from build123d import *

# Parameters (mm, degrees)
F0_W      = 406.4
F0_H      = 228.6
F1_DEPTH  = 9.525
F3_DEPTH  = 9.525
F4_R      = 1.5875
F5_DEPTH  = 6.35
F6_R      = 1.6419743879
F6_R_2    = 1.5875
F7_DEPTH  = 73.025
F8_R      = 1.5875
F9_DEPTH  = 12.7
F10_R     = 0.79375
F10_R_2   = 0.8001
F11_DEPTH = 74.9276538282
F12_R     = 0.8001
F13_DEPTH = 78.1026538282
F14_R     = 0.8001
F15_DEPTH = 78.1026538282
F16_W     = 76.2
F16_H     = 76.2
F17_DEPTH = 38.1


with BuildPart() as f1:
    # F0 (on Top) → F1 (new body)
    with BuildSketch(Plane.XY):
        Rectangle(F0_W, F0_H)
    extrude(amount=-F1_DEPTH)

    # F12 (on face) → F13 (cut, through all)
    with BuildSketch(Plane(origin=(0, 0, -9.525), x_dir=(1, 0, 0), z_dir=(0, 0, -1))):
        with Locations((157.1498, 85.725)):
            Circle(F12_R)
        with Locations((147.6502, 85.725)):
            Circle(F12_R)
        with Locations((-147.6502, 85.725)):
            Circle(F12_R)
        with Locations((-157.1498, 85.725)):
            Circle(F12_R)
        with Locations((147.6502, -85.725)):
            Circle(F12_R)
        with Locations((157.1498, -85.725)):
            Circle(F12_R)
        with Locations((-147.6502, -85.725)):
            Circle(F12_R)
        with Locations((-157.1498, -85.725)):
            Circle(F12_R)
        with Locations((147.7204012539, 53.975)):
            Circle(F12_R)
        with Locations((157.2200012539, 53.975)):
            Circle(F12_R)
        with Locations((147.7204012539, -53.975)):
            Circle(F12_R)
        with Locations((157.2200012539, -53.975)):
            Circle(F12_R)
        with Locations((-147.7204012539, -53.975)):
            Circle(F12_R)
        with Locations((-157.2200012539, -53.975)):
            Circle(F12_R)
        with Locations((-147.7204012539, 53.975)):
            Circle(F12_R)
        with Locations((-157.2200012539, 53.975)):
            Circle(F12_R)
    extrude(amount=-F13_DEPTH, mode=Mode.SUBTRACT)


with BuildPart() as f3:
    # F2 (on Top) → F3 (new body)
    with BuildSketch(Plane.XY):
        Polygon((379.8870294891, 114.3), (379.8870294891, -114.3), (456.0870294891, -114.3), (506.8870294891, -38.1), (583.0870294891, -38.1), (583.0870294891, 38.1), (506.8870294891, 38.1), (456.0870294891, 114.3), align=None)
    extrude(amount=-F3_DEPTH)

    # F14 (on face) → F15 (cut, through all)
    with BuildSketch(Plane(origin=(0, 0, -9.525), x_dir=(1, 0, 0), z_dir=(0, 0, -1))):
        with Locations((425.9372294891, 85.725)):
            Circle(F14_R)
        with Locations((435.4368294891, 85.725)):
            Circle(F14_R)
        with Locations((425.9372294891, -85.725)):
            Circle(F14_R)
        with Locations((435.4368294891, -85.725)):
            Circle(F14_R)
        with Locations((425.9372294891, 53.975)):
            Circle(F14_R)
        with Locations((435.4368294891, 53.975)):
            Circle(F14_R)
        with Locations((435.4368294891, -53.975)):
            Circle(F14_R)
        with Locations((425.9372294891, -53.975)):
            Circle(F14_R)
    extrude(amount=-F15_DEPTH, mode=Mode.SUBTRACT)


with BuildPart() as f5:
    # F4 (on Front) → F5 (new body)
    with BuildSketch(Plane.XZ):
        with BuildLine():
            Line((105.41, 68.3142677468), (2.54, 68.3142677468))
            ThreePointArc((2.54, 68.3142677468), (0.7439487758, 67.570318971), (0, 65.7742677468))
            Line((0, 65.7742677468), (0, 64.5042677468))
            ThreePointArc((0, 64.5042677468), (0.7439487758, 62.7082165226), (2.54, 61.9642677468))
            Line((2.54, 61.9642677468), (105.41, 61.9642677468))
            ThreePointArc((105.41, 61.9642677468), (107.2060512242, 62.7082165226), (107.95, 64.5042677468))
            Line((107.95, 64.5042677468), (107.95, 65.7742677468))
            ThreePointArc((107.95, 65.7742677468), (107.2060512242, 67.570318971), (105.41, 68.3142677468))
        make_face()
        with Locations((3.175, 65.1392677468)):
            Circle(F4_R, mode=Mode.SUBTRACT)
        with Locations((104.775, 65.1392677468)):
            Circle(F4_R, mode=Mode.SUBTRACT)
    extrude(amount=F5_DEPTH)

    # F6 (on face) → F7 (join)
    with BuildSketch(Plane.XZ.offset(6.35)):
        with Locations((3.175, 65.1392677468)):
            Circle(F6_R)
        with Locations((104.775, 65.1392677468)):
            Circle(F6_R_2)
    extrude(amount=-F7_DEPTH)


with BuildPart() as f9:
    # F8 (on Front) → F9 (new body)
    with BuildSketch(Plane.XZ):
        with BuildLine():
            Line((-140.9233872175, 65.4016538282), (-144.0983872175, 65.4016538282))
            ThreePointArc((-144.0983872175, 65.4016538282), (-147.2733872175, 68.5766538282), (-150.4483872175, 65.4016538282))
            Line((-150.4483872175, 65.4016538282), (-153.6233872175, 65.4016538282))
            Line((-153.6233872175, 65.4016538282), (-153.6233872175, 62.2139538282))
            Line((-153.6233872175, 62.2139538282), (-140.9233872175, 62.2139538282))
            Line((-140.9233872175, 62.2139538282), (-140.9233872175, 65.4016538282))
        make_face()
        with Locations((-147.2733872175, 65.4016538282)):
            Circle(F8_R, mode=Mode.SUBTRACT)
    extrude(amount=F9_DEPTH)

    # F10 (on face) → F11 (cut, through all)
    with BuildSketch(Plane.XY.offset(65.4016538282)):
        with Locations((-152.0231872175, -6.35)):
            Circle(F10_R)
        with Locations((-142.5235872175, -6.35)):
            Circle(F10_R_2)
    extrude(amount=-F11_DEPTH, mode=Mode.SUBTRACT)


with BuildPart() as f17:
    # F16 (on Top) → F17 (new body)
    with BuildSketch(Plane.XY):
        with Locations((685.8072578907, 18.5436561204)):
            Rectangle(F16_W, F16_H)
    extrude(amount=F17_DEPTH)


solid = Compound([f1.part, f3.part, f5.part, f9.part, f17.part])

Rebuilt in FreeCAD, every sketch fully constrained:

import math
import FreeCAD as App
import Part
import Sketcher
from FreeCAD import Vector
Q = App.Units.Quantity

doc = App.newDocument("Part")
body = doc.addObject("PartDesign::Body", "Body")

sketch1 = doc.addObject("Sketcher::SketchObject", "Sketch")
body.addObject(sketch1)
sketch1.AttachmentSupport = (doc.XY_Plane, [""])
sketch1.MapMode = "FlatFace"
sketch1.addGeometry([
    Part.LineSegment(Vector(-203, 114, 0), Vector(-203, -114, 0)),
    Part.LineSegment(Vector(-203, -114, 0), Vector(203, -114, 0)),
    Part.LineSegment(Vector(203, -114, 0), Vector(203, 114, 0)),
    Part.LineSegment(Vector(203, 114, 0), Vector(-203, 114, 0)),
], False)
sketch1.addConstraint([
    Sketcher.Constraint("Coincident", 0, 2, 1, 1),
    Sketcher.Constraint("Coincident", 1, 2, 2, 1),
    Sketcher.Constraint("Coincident", 2, 2, 3, 1),
    Sketcher.Constraint("Coincident", 3, 2, 0, 1),
    Sketcher.Constraint("Vertical", 0),
    Sketcher.Constraint("Horizontal", 1),
    Sketcher.Constraint("Vertical", 2),
    Sketcher.Constraint("Horizontal", 3),
    Sketcher.Constraint("Symmetric", 0, 2, 2, 2, -1, 1),
    Sketcher.Constraint("DistanceX", 1, 1, 1, 2, Q("16 in")),
    Sketcher.Constraint("DistanceY", 0, 2, 0, 1, Q("9 in")),
])
pad1 = doc.addObject("PartDesign::Pad", "Pad")
body.addObject(pad1)
pad1.Profile = sketch1
pad1.Length = Q("0.375 in")
pad1.Reversed = True

sketch2 = doc.addObject("Sketcher::SketchObject", "Sketch001")
body.addObject(sketch2)
sketch2.AttachmentSupport = (doc.XY_Plane, [""])
sketch2.MapMode = "FlatFace"
sketch2.AttachmentOffset = App.Placement(Vector(0, 0, -0.375 * 25.4), App.Rotation())
sketch2.addGeometry([
    Part.Circle(Vector(157.1, -85.7, 0), Vector(0, 0, 1), 0.8),
    Part.Circle(Vector(147.7, -85.7, 0), Vector(0, 0, 1), 0.8),
    Part.Circle(Vector(-147.7, -85.7, 0), Vector(0, 0, 1), 0.8),
    Part.Circle(Vector(-157.1, -85.7, 0), Vector(0, 0, 1), 0.8),
    Part.Circle(Vector(147.7, 85.7, 0), Vector(0, 0, 1), 0.8),
    Part.Circle(Vector(157.1, 85.7, 0), Vector(0, 0, 1), 0.8),
    Part.Circle(Vector(-147.7, 85.7, 0), Vector(0, 0, 1), 0.8),
    Part.Circle(Vector(-157.1, 85.7, 0), Vector(0, 0, 1), 0.8),
    Part.Circle(Vector(147.7, -54, 0), Vector(0, 0, 1), 0.8),
    Part.Circle(Vector(157.2, -54, 0), Vector(0, 0, 1), 0.8),
    Part.Circle(Vector(147.7, 54, 0), Vector(0, 0, 1), 0.8),
    Part.Circle(Vector(157.2, 54, 0), Vector(0, 0, 1), 0.8),
    Part.Circle(Vector(-147.7, 54, 0), Vector(0, 0, 1), 0.8),
    Part.Circle(Vector(-157.2, 54, 0), Vector(0, 0, 1), 0.8),
    Part.Circle(Vector(-147.7, -54, 0), Vector(0, 0, 1), 0.8),
    Part.Circle(Vector(-157.2, -54, 0), Vector(0, 0, 1), 0.8),
], False)
sketch2.addConstraint([
    Sketcher.Constraint("Equal", 0, 1),
    Sketcher.Constraint("Equal", 1, 2),
    Sketcher.Constraint("Equal", 2, 3),
    Sketcher.Constraint("Equal", 3, 4),
    Sketcher.Constraint("Equal", 4, 5),
    Sketcher.Constraint("Equal", 5, 6),
    Sketcher.Constraint("Equal", 6, 7),
    Sketcher.Constraint("Equal", 7, 8),
    Sketcher.Constraint("Equal", 8, 9),
    Sketcher.Constraint("Equal", 9, 10),
    Sketcher.Constraint("Equal", 10, 11),
    Sketcher.Constraint("Equal", 11, 12),
    Sketcher.Constraint("Equal", 12, 13),
    Sketcher.Constraint("Equal", 13, 14),
    Sketcher.Constraint("Equal", 14, 15),
    Sketcher.Constraint("Symmetric", 2, 3, 4, 3, -1, 1),
    Sketcher.Constraint("Symmetric", 3, 3, 5, 3, -1, 1),
    Sketcher.Constraint("Symmetric", 1, 3, 6, 3, -1, 1),
    Sketcher.Constraint("Symmetric", 0, 3, 7, 3, -1, 1),
    Sketcher.Constraint("Symmetric", 8, 3, 12, 3, -1, 1),
    Sketcher.Constraint("Symmetric", 9, 3, 13, 3, -1, 1),
    Sketcher.Constraint("Symmetric", 10, 3, 14, 3, -1, 1),
    Sketcher.Constraint("Symmetric", 11, 3, 15, 3, -1, 1),
    Sketcher.Constraint("Symmetric", 1, 3, 2, 3, -2),
    Sketcher.Constraint("Symmetric", 0, 3, 3, 3, -2),
    Sketcher.Constraint("Symmetric", 10, 3, 12, 3, -2),
    Sketcher.Constraint("Symmetric", 11, 3, 13, 3, -2),
    Sketcher.Constraint("Horizontal", 0, 3, 1, 3),
    Sketcher.Constraint("Horizontal", 8, 3, 9, 3),
    Sketcher.Constraint("Diameter", 0, Q("0.063 in")),
    Sketcher.Constraint("DistanceX", 2, 3, 0, 3, Q("12 in")),
    Sketcher.Constraint("DistanceY", 8, 3, 4, 3, Q("5.5 in")),
    Sketcher.Constraint("DistanceY", 1, 3, 4, 3, Q("6.75 in")),
    Sketcher.Constraint("DistanceX", -1, 1, 0, 3, Q("6.187 in")),
    Sketcher.Constraint("DistanceX", 8, 3, 9, 3, Q("0.374 in")),
    Sketcher.Constraint("DistanceX", -1, 1, 8, 3, Q("147.720401 mm")),
])
pocket1 = doc.addObject("PartDesign::Pocket", "Pocket")
body.addObject(pocket1)
pocket1.Profile = sketch2
pocket1.Type = "ThroughAll"
pocket1.Reversed = True
body2 = doc.addObject("PartDesign::Body", "Body001")

sketch3 = doc.addObject("Sketcher::SketchObject", "Sketch002")
body2.addObject(sketch3)
sketch3.AttachmentSupport = (doc.getObject("XY_Plane001"), [""])
sketch3.MapMode = "FlatFace"
sketch3.addGeometry([
    Part.LineSegment(Vector(380, 114, 0), Vector(380, -114, 0)),
    Part.LineSegment(Vector(380, -114, 0), Vector(456, -114, 0)),
    Part.LineSegment(Vector(456, -114, 0), Vector(507, -38, 0)),
    Part.LineSegment(Vector(507, -38, 0), Vector(583, -38, 0)),
    Part.LineSegment(Vector(583, -38, 0), Vector(583, 38, 0)),
    Part.LineSegment(Vector(583, 38, 0), Vector(507, 38, 0)),
    Part.LineSegment(Vector(507, 38, 0), Vector(456, 114, 0)),
    Part.LineSegment(Vector(456, 114, 0), Vector(380, 114, 0)),
], False)
sketch3.addConstraint([
    Sketcher.Constraint("Coincident", 0, 2, 1, 1),
    Sketcher.Constraint("Coincident", 1, 2, 2, 1),
    Sketcher.Constraint("Coincident", 2, 2, 3, 1),
    Sketcher.Constraint("Coincident", 3, 2, 4, 1),
    Sketcher.Constraint("Coincident", 4, 2, 5, 1),
    Sketcher.Constraint("Coincident", 5, 2, 6, 1),
    Sketcher.Constraint("Coincident", 6, 2, 7, 1),
    Sketcher.Constraint("Coincident", 7, 2, 0, 1),
    Sketcher.Constraint("Vertical", 0),
    Sketcher.Constraint("Horizontal", 1),
    Sketcher.Constraint("Horizontal", 3),
    Sketcher.Constraint("Vertical", 4),
    Sketcher.Constraint("Horizontal", 5),
    Sketcher.Constraint("Horizontal", 7),
    Sketcher.Constraint("Symmetric", 2, 2, 5, 2, -1),
    Sketcher.Constraint("Symmetric", 1, 2, 6, 2, -1),
    Sketcher.Constraint("Equal", 1, 3),
    Sketcher.Constraint("Equal", 7, 4),
    Sketcher.Constraint("DistanceX", 1, 1, 1, 2, Q("3 in")),
    Sketcher.Constraint("DistanceY", 0, 2, 0, 1, Q("9 in")),
    Sketcher.Constraint("DistanceX", 1, 2, 2, 2, Q("2 in")),
    Sketcher.Constraint("DistanceX", -1, 1, 0, 2, Q("379.887029 mm")),
])
pad2 = doc.addObject("PartDesign::Pad", "Pad001")
body2.addObject(pad2)
pad2.Profile = sketch3
pad2.Length = Q("0.375 in")
pad2.Reversed = True

sketch4 = doc.addObject("Sketcher::SketchObject", "Sketch003")
body2.addObject(sketch4)
sketch4.AttachmentSupport = (doc.getObject("XY_Plane001"), [""])
sketch4.MapMode = "FlatFace"
sketch4.AttachmentOffset = App.Placement(Vector(0, 0, -0.375 * 25.4), App.Rotation())
sketch4.addGeometry([
    Part.Circle(Vector(425.9, -85.7, 0), Vector(0, 0, 1), 0.8),
    Part.Circle(Vector(435.4, -85.7, 0), Vector(0, 0, 1), 0.8),
    Part.Circle(Vector(425.9, 85.7, 0), Vector(0, 0, 1), 0.8),
    Part.Circle(Vector(435.4, 85.7, 0), Vector(0, 0, 1), 0.8),
    Part.Circle(Vector(425.9, -54, 0), Vector(0, 0, 1), 0.8),
    Part.Circle(Vector(435.4, -54, 0), Vector(0, 0, 1), 0.8),
    Part.Circle(Vector(435.4, 54, 0), Vector(0, 0, 1), 0.8),
    Part.Circle(Vector(425.9, 54, 0), Vector(0, 0, 1), 0.8),
], False)
sketch4.addConstraint([
    Sketcher.Constraint("Equal", 0, 1),
    Sketcher.Constraint("Equal", 1, 2),
    Sketcher.Constraint("Equal", 2, 3),
    Sketcher.Constraint("Equal", 3, 4),
    Sketcher.Constraint("Equal", 4, 5),
    Sketcher.Constraint("Equal", 5, 6),
    Sketcher.Constraint("Equal", 6, 7),
    Sketcher.Constraint("Symmetric", 0, 3, 2, 3, -1),
    Sketcher.Constraint("Symmetric", 1, 3, 3, 3, -1),
    Sketcher.Constraint("Symmetric", 5, 3, 6, 3, -1),
    Sketcher.Constraint("Symmetric", 4, 3, 7, 3, -1),
    Sketcher.Constraint("Horizontal", 0, 3, 1, 3),
    Sketcher.Constraint("Horizontal", 4, 3, 5, 3),
    Sketcher.Constraint("Vertical", 2, 3, 4, 3),
    Sketcher.Constraint("Vertical", 3, 3, 5, 3),
    Sketcher.Constraint("Diameter", 0, Q("0.063 in")),
    Sketcher.Constraint("DistanceY", 4, 3, 2, 3, Q("5.5 in")),
    Sketcher.Constraint("DistanceY", 0, 3, 2, 3, Q("6.75 in")),
    Sketcher.Constraint("DistanceX", 0, 3, 1, 3, Q("0.374 in")),
    Sketcher.Constraint("DistanceX", -1, 1, 0, 3, Q("425.937229 mm")),
])
pocket2 = doc.addObject("PartDesign::Pocket", "Pocket001")
body2.addObject(pocket2)
pocket2.Profile = sketch4
pocket2.Type = "ThroughAll"
pocket2.Reversed = True
body3 = doc.addObject("PartDesign::Body", "Body002")

sketch5 = doc.addObject("Sketcher::SketchObject", "Sketch004")
body3.addObject(sketch5)
sketch5.AttachmentSupport = (doc.getObject("XZ_Plane002"), [""])
sketch5.MapMode = "FlatFace"
sketch5.addGeometry([
    Part.LineSegment(Vector(105.4, 68.3, 0), Vector(2.5, 68.3, 0)),
    Part.ArcOfCircle(Part.Circle(Vector(2.5, 65.8, 0), Vector(0, 0, 1), 2.5), math.radians(90), math.radians(180)),
    Part.LineSegment(Vector(0, 65.8, 0), Vector(0, 64.5, 0)),
    Part.ArcOfCircle(Part.Circle(Vector(2.5, 64.5, 0), Vector(0, 0, 1), 2.5), math.radians(180), math.radians(270)),
    Part.LineSegment(Vector(2.5, 62, 0), Vector(105.4, 62, 0)),
    Part.ArcOfCircle(Part.Circle(Vector(105.4, 64.5, 0), Vector(0, 0, 1), 2.5), math.radians(-90), math.radians(0)),
    Part.LineSegment(Vector(108, 64.5, 0), Vector(108, 65.8, 0)),
    Part.ArcOfCircle(Part.Circle(Vector(105.4, 65.8, 0), Vector(0, 0, 1), 2.5), math.radians(0), math.radians(90)),
    Part.Circle(Vector(3.2, 65.1, 0), Vector(0, 0, 1), 1.6),
    Part.Circle(Vector(104.8, 65.1, 0), Vector(0, 0, 1), 1.6),
], False)
sketch5.addConstraint([
    Sketcher.Constraint("Tangent", 0, 2, 1, 1),
    Sketcher.Constraint("Tangent", 1, 2, 2, 1),
    Sketcher.Constraint("Tangent", 2, 2, 3, 1),
    Sketcher.Constraint("Tangent", 3, 2, 4, 1),
    Sketcher.Constraint("Tangent", 4, 2, 5, 1),
    Sketcher.Constraint("Tangent", 5, 2, 6, 1),
    Sketcher.Constraint("Tangent", 6, 2, 7, 1),
    Sketcher.Constraint("Tangent", 7, 2, 0, 1),
    Sketcher.Constraint("Horizontal", 0),
    Sketcher.Constraint("Vertical", 2),
    Sketcher.Constraint("Horizontal", 4),
    Sketcher.Constraint("Vertical", 6),
    Sketcher.Constraint("Equal", 1, 3),
    Sketcher.Constraint("Equal", 3, 5),
    Sketcher.Constraint("Equal", 5, 7),
    Sketcher.Constraint("Equal", 8, 9),
    Sketcher.Constraint("PointOnObject", 1, 2, -2),
    Sketcher.Constraint("Horizontal", 8, 3, 9, 3),
    Sketcher.Constraint("Radius", 1, Q("0.1 in")),
    Sketcher.Constraint("Diameter", 8, Q("0.125 in")),
    Sketcher.Constraint("DistanceX", 8, 3, 9, 3, Q("4 in")),
    Sketcher.Constraint("DistanceX", 0, 2, 0, 1, Q("4.05 in")),
    Sketcher.Constraint("DistanceY", 2, 2, 2, 1, Q("0.05 in")),
    Sketcher.Constraint("DistanceX", -1, 1, 8, 3, Q("0.125 in")),
    Sketcher.Constraint("DistanceY", 8, 3, 1, 3, Q("0.025 in")),
    Sketcher.Constraint("DistanceY", -1, 1, 1, 3, Q("65.774268 mm")),
])
pad3 = doc.addObject("PartDesign::Pad", "Pad002")
body3.addObject(pad3)
pad3.Profile = sketch5
pad3.Length = Q("0.25 in")

sketch6 = doc.addObject("Sketcher::SketchObject", "Sketch005")
body3.addObject(sketch6)
sketch6.AttachmentSupport = (doc.getObject("XZ_Plane002"), [""])
sketch6.MapMode = "FlatFace"
sketch6.AttachmentOffset = App.Placement(Vector(0, 0, 0.25 * 25.4), App.Rotation())
sketch6.addGeometry([
    Part.Circle(Vector(3.2, 65.1, 0), Vector(0, 0, 1), 1.6),
    Part.Circle(Vector(104.8, 65.1, 0), Vector(0, 0, 1), 1.6),
], False)
sketch6.addConstraint([
    Sketcher.Constraint("Horizontal", 0, 3, 1, 3),
    Sketcher.Constraint("Diameter", 1, Q("0.125 in")),
    Sketcher.Constraint("DistanceX", 0, 3, 1, 3, Q("4 in")),
    Sketcher.Constraint("Diameter", 0, Q("3.283949 mm")),
    Sketcher.Constraint("DistanceX", -1, 1, 0, 3, Q("0.125 in")),
    Sketcher.Constraint("DistanceY", -1, 1, 0, 3, Q("65.139268 mm")),
])
pad4 = doc.addObject("PartDesign::Pad", "Pad003")
body3.addObject(pad4)
pad4.Profile = sketch6
pad4.Length = Q("2.875 in")
pad4.Reversed = True
body4 = doc.addObject("PartDesign::Body", "Body003")

sketch7 = doc.addObject("Sketcher::SketchObject", "Sketch006")
body4.addObject(sketch7)
sketch7.AttachmentSupport = (doc.getObject("XZ_Plane003"), [""])
sketch7.MapMode = "FlatFace"
sketch7.addGeometry([
    Part.LineSegment(Vector(-140.9, 65.4, 0), Vector(-144.1, 65.4, 0)),
    Part.ArcOfCircle(Part.Circle(Vector(-147.3, 65.4, 0), Vector(0, 0, 1), 3.2), math.radians(0), math.radians(180)),
    Part.LineSegment(Vector(-150.4, 65.4, 0), Vector(-153.6, 65.4, 0)),
    Part.LineSegment(Vector(-153.6, 65.4, 0), Vector(-153.6, 62.2, 0)),
    Part.LineSegment(Vector(-153.6, 62.2, 0), Vector(-140.9, 62.2, 0)),
    Part.LineSegment(Vector(-140.9, 62.2, 0), Vector(-140.9, 65.4, 0)),
    Part.Circle(Vector(-147.3, 65.4, 0), Vector(0, 0, 1), 1.6),
], False)
sketch7.addConstraint([
    Sketcher.Constraint("Coincident", 0, 2, 1, 1),
    Sketcher.Constraint("Coincident", 1, 2, 2, 1),
    Sketcher.Constraint("Coincident", 2, 2, 3, 1),
    Sketcher.Constraint("Coincident", 3, 2, 4, 1),
    Sketcher.Constraint("Coincident", 4, 2, 5, 1),
    Sketcher.Constraint("Coincident", 5, 2, 0, 1),
    Sketcher.Constraint("Horizontal", 0),
    Sketcher.Constraint("Horizontal", 2),
    Sketcher.Constraint("Vertical", 3),
    Sketcher.Constraint("Horizontal", 4),
    Sketcher.Constraint("Vertical", 5),
    Sketcher.Constraint("Coincident", 6, 3, 1, 3),
    Sketcher.Constraint("Horizontal", 6, 3, 0, 2),
    Sketcher.Constraint("Horizontal", 0, 2, 1, 2),
    Sketcher.Constraint("Equal", 0, 2),
    Sketcher.Constraint("Diameter", 6, Q("0.125 in")),
    Sketcher.Constraint("DistanceX", 4, 1, 4, 2, Q("0.5 in")),
    Sketcher.Constraint("Radius", 1, Q("0.125 in")),
    Sketcher.Constraint("DistanceY", 3, 2, 3, 1, Q("0.1255 in")),
    Sketcher.Constraint("DistanceX", 1, 3, -1, 1, Q("147.273387 mm")),
    Sketcher.Constraint("DistanceY", -1, 1, 1, 3, Q("65.401654 mm")),
])
pad5 = doc.addObject("PartDesign::Pad", "Pad004")
body4.addObject(pad5)
pad5.Profile = sketch7
pad5.Length = Q("0.5 in")

sketch8 = doc.addObject("Sketcher::SketchObject", "Sketch007")
body4.addObject(sketch8)
sketch8.AttachmentSupport = (doc.getObject("XY_Plane003"), [""])
sketch8.MapMode = "FlatFace"
sketch8.AttachmentOffset = App.Placement(Vector(0, 0, 65.401654), App.Rotation())
sketch8.addGeometry([
    Part.Circle(Vector(-152, -6.3, 0), Vector(0, 0, 1), 0.8),
    Part.Circle(Vector(-142.5, -6.3, 0), Vector(0, 0, 1), 0.8),
], False)
sketch8.addConstraint([
    Sketcher.Constraint("Horizontal", 0, 3, 1, 3),
    Sketcher.Constraint("Diameter", 0, Q("0.0625 in")),
    Sketcher.Constraint("Diameter", 1, Q("0.063 in")),
    Sketcher.Constraint("DistanceY", 0, 3, -1, 1, Q("0.25 in")),
    Sketcher.Constraint("DistanceX", 0, 3, 1, 3, Q("0.374 in")),
    Sketcher.Constraint("DistanceX", 0, 3, -1, 1, Q("152.023187 mm")),
])
pocket3 = doc.addObject("PartDesign::Pocket", "Pocket002")
body4.addObject(pocket3)
pocket3.Profile = sketch8
pocket3.Type = "ThroughAll"
body5 = doc.addObject("PartDesign::Body", "Body004")

sketch9 = doc.addObject("Sketcher::SketchObject", "Sketch008")
body5.addObject(sketch9)
sketch9.AttachmentSupport = (doc.getObject("XY_Plane004"), [""])
sketch9.MapMode = "FlatFace"
sketch9.addGeometry([
    Part.LineSegment(Vector(648, 57, 0), Vector(648, -20, 0)),
    Part.LineSegment(Vector(648, -20, 0), Vector(724, -20, 0)),
    Part.LineSegment(Vector(724, -20, 0), Vector(724, 57, 0)),
    Part.LineSegment(Vector(724, 57, 0), Vector(648, 57, 0)),
], False)
sketch9.addConstraint([
    Sketcher.Constraint("Coincident", 0, 2, 1, 1),
    Sketcher.Constraint("Coincident", 1, 2, 2, 1),
    Sketcher.Constraint("Coincident", 2, 2, 3, 1),
    Sketcher.Constraint("Coincident", 3, 2, 0, 1),
    Sketcher.Constraint("Vertical", 0),
    Sketcher.Constraint("Horizontal", 1),
    Sketcher.Constraint("Vertical", 2),
    Sketcher.Constraint("Horizontal", 3),
    Sketcher.Constraint("Equal", 3, 0),
    Sketcher.Constraint("DistanceX", 1, 1, 1, 2, Q("3 in")),
    Sketcher.Constraint("DistanceX", -1, 1, 0, 2, Q("647.707258 mm")),
    Sketcher.Constraint("DistanceY", 0, 2, -1, 1, Q("19.556344 mm")),
])
pad6 = doc.addObject("PartDesign::Pad", "Pad005")
body5.addObject(pad6)
pad6.Profile = sketch9
pad6.Length = Q("1.5 in")

doc.recompute()
